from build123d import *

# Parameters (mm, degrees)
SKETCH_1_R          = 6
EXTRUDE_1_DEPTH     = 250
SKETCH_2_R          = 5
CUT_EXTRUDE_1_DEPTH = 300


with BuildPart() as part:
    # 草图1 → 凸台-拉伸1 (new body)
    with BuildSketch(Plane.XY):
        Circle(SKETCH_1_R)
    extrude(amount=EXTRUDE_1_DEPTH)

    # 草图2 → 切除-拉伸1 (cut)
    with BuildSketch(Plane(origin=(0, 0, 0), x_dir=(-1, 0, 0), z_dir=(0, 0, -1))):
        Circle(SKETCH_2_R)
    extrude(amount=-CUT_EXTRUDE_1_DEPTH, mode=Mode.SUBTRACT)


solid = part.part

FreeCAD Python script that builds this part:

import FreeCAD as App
import Part
import Sketcher
from FreeCAD import Vector

doc = App.newDocument("Part")
body = doc.addObject("PartDesign::Body", "Body")

# Sketch on XY plane
sketch1 = body.newObject("Sketcher::SketchObject", "Sketch")
sketch1.AttachmentSupport = (doc.getObject("XY_Plane"), [""])
sketch1.MapMode = "FlatFace"
sketch1.addGeometry(Part.Circle(Vector(0, 0, 0), Vector(0, 0, 1), 6), False)
sketch1.addConstraint([
    Sketcher.Constraint("Coincident", 0, 3, -1, 1),
    Sketcher.Constraint("Diameter", 0, 12.0),
])
pad1 = body.newObject("PartDesign::Pad", "Pad")
pad1.Profile = sketch1
pad1.Length = 250

# Sketch on XY plane
sketch2 = body.newObject("Sketcher::SketchObject", "Sketch001")
sketch2.AttachmentSupport = (doc.getObject("XY_Plane"), [""])
sketch2.MapMode = "FlatFace"
sketch2.addGeometry(Part.Circle(Vector(0, 0, 0), Vector(0, 0, 1), 5), False)
sketch2.addConstraint([
    Sketcher.Constraint("Coincident", 0, 3, -1, 1),
    Sketcher.Constraint("Diameter", 0, 10.0),
])
pocket1 = body.newObject("PartDesign::Pocket", "Pocket")
pocket1.Profile = sketch2
pocket1.Length = 300
pocket1.Reversed = True

doc.recompute()
